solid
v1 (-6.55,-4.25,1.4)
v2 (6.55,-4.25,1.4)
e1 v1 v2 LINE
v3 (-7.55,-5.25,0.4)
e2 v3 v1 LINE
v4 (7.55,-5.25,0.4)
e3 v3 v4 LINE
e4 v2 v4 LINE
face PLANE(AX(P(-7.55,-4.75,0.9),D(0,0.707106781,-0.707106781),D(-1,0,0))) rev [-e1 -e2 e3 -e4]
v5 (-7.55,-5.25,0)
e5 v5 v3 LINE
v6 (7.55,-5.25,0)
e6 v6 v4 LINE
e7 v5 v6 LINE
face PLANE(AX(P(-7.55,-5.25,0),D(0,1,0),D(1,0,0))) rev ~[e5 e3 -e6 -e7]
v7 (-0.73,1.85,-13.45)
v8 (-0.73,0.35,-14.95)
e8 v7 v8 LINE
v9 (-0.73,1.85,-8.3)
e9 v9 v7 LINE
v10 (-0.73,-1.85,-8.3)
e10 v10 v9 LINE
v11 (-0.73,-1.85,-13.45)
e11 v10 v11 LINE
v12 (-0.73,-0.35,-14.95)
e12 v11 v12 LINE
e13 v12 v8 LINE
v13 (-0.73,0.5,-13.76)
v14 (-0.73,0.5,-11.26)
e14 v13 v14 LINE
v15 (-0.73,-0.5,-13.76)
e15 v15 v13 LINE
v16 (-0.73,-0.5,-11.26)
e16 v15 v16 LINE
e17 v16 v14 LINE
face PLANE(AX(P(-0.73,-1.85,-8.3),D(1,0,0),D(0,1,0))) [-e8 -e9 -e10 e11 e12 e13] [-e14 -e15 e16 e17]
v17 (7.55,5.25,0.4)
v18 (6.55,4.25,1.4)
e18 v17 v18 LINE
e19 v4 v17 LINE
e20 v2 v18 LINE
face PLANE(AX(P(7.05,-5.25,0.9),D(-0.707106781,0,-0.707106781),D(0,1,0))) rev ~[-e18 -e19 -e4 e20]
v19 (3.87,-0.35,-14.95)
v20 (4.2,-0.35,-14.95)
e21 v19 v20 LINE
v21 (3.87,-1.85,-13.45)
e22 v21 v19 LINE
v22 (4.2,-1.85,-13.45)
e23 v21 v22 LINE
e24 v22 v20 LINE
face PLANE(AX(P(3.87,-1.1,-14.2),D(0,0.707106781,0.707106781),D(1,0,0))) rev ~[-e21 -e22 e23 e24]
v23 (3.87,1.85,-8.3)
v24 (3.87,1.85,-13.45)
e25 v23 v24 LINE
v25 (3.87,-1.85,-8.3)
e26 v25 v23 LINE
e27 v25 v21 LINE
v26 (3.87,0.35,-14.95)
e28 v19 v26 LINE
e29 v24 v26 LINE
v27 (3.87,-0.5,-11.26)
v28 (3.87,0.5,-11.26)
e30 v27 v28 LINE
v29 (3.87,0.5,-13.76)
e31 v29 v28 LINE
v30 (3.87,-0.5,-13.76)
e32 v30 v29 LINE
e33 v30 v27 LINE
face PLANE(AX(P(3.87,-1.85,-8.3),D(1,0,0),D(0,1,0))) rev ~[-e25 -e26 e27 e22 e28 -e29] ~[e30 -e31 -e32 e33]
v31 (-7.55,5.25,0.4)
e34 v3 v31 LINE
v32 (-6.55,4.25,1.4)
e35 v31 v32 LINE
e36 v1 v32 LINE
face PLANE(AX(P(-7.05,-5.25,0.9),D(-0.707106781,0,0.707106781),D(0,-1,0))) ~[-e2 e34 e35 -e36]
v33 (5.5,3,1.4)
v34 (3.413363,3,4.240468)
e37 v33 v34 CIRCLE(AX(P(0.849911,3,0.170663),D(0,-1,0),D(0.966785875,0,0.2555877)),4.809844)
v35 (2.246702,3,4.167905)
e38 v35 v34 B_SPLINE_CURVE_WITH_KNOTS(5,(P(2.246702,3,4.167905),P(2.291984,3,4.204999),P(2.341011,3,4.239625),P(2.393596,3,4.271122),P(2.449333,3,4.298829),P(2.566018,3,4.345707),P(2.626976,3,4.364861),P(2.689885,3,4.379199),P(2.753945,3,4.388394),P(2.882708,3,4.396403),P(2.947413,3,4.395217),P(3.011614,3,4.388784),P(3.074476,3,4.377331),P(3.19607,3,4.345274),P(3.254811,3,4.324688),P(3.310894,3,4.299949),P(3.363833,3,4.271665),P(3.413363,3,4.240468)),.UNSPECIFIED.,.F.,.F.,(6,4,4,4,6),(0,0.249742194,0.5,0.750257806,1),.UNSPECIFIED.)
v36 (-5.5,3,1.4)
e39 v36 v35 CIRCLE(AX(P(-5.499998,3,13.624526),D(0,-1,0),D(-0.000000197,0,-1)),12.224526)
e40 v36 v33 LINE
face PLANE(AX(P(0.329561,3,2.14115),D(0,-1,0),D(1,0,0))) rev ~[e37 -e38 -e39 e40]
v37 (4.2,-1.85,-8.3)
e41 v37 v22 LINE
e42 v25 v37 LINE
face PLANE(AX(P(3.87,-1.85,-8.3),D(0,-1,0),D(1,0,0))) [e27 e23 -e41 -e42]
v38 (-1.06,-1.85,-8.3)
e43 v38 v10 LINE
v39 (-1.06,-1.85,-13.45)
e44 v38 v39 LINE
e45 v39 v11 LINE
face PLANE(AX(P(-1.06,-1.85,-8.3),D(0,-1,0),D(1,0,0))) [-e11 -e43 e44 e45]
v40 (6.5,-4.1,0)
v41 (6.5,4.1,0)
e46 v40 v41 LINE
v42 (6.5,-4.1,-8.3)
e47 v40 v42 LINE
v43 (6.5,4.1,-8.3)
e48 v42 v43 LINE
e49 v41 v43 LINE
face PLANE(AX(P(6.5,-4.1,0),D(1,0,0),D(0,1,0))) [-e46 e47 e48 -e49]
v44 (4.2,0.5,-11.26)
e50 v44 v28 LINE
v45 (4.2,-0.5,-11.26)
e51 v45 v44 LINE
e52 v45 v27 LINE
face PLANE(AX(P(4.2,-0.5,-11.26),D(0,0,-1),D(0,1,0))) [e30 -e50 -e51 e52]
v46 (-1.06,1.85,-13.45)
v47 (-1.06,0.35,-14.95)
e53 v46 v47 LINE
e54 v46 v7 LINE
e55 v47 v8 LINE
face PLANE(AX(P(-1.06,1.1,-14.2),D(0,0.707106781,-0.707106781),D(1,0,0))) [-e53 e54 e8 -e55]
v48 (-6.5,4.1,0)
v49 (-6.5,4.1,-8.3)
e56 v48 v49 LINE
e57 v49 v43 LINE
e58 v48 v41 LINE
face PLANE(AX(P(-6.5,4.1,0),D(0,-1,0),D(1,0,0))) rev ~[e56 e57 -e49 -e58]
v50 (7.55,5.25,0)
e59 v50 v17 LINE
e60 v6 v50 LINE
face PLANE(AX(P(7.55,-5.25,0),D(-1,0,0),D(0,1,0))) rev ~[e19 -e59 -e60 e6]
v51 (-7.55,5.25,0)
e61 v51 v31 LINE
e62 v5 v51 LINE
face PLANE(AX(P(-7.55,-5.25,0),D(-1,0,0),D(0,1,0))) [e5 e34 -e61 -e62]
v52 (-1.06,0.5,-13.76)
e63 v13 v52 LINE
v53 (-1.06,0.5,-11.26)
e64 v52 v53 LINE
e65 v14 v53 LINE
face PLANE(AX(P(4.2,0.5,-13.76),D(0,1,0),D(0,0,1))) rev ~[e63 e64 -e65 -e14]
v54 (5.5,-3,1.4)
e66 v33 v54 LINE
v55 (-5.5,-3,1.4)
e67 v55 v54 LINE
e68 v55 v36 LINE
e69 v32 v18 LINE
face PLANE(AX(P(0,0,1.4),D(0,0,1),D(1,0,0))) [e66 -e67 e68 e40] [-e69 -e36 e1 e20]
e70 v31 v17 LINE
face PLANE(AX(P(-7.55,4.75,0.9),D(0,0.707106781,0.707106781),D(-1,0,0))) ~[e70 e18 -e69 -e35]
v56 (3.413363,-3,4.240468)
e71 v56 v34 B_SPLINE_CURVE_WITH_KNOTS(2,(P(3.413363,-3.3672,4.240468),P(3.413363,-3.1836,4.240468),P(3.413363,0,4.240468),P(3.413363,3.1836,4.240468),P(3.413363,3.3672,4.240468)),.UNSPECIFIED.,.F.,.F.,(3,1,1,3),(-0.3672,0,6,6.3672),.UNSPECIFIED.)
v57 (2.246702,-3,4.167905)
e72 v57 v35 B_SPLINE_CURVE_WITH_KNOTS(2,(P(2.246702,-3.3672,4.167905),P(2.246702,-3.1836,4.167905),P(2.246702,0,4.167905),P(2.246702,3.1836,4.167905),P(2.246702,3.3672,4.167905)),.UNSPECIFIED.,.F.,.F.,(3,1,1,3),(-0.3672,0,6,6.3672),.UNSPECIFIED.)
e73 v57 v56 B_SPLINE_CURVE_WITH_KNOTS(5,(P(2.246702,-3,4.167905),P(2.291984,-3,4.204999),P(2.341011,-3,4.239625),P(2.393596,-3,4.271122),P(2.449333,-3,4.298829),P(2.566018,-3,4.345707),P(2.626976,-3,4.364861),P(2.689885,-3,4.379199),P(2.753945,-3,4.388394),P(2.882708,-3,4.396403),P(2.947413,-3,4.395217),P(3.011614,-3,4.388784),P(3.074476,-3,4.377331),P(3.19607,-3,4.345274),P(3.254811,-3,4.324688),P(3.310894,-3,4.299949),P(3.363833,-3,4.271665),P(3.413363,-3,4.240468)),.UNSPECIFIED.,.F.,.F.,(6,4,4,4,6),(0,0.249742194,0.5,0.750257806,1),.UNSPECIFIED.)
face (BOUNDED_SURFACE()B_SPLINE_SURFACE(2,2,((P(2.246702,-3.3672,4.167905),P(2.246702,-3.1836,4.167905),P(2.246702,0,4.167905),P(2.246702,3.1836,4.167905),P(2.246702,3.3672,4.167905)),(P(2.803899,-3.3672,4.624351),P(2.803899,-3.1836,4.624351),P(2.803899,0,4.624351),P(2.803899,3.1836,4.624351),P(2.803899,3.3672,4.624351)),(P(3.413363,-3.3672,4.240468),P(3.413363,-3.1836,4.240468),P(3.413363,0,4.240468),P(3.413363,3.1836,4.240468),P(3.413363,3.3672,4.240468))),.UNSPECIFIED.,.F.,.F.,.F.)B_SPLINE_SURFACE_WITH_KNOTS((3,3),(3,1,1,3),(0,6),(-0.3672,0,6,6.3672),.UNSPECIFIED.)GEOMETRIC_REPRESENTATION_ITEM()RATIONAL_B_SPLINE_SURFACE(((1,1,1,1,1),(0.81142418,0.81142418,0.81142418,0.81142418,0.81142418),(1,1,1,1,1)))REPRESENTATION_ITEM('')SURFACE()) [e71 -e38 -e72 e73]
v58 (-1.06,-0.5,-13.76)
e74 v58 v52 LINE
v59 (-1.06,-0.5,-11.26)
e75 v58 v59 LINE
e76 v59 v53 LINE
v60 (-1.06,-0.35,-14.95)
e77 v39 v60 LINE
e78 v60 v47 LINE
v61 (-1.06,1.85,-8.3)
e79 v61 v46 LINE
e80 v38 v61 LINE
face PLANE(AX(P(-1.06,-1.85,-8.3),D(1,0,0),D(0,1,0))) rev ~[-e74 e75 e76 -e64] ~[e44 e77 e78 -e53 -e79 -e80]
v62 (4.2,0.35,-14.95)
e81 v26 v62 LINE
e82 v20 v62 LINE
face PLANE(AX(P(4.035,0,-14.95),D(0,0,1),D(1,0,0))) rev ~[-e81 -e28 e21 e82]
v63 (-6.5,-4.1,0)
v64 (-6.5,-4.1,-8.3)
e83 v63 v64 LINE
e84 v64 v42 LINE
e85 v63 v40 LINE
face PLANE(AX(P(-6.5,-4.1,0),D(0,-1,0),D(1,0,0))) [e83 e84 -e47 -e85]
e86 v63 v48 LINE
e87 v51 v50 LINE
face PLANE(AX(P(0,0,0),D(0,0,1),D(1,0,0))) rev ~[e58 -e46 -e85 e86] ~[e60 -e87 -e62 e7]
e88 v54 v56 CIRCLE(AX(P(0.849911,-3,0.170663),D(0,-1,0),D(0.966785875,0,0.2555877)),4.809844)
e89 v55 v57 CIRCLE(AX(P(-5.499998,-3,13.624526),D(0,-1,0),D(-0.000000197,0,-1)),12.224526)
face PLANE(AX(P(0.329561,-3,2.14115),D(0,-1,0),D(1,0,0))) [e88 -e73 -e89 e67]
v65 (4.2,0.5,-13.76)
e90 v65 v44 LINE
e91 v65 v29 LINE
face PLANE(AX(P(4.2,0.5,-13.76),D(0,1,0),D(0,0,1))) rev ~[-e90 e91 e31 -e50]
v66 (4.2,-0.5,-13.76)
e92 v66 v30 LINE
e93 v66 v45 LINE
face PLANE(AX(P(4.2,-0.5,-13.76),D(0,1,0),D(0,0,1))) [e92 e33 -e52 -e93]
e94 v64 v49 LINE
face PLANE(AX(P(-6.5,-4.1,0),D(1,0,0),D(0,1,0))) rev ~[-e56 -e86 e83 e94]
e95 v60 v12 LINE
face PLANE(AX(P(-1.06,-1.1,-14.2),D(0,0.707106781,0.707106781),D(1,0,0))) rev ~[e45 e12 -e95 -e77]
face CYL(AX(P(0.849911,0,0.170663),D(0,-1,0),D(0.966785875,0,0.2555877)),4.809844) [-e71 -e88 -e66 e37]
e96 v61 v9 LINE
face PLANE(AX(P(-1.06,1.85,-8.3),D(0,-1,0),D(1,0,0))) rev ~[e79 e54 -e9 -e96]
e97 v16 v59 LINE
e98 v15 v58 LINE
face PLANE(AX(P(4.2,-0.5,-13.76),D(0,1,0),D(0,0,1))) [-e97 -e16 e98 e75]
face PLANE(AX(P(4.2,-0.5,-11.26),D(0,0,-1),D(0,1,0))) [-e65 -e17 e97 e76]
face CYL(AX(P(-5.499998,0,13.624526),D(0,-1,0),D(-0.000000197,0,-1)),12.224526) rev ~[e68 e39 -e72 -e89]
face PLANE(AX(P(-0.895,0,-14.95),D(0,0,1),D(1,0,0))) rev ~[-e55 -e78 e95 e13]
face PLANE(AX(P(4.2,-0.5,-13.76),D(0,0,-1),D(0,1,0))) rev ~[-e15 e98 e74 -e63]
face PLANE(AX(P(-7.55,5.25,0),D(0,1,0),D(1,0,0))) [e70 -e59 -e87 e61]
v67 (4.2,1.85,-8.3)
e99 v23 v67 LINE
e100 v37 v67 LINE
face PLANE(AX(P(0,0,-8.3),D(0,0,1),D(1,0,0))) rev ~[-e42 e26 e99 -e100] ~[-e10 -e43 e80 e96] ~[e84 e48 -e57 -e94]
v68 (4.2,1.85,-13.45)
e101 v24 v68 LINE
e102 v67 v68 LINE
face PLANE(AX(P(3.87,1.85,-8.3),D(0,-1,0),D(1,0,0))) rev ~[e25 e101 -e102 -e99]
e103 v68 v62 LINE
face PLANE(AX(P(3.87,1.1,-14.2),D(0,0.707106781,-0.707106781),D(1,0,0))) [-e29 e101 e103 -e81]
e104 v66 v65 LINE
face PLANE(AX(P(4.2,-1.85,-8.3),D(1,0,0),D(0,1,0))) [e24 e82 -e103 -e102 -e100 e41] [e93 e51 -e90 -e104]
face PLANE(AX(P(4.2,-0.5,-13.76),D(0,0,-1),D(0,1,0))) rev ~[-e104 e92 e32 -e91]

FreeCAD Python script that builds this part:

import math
import FreeCAD as App
import Part
import Sketcher
from FreeCAD import Vector


def edges_at(feature, points):
    """Names of the edges that pass closest to the given points."""
    edges = feature.Shape.Edges
    near = lambda p: min(range(len(edges)), key=lambda i: edges[i].distToShape(Part.Vertex(*p))[0])
    return sorted({f"Edge{near(p) + 1}" for p in points})


def add_polygon(sketch, points):
    """Adds a closed chain of lines whose ends are joined by coincident constraints."""
    first, n = sketch.GeometryCount, len(points)
    for a, b in zip(points, points[1:] + points[:1]):
        sketch.addGeometry(Part.LineSegment(App.Vector(*a, 0), App.Vector(*b, 0)), False)
    for i in range(n):
        sketch.addConstraint(Sketcher.Constraint("Coincident", first + i, 2, first + (i + 1) % n, 1))

doc = App.newDocument("Part")
params = doc.addObject("Spreadsheet::Sheet", "Params")
for row, (alias, value) in enumerate([
    ("sketch1_width", "13 mm"),
    ("sketch1_height", "8.2 mm"),
    ("pad1_length", "8.3 mm"),
    ("sketch2_width", "15.1 mm"),
    ("sketch2_height", "10.5 mm"),
    ("pad2_length", "1.4 mm"),
    ("chamfer_size", "1 mm"),
    ("sketch3_width", "11 mm"),
    ("pad3_length", "6 mm"),
    ("fillet_radius", "1 mm"),
    ("sketch4_height", "3.7 mm"),
    ("sketch4_width", "0.33 mm"),
    ("pad4_length", "6.65 mm"),
    ("chamfer2_size", "1.5 mm"),
    ("sketch5_width", "1 mm"),
    ("sketch5_height", "2.5 mm"),
], start=1):
    params.set(f"A{row}", alias)
    params.set(f"B{row}", "=" + value)
    params.setAlias(f"B{row}", alias)

body = doc.addObject("PartDesign::Body", "Body")

# Sketch on XY plane
sketch1 = body.newObject("Sketcher::SketchObject", "Sketch")
sketch1.AttachmentSupport = (doc.getObject("XY_Plane"), [""])
sketch1.MapMode = "FlatFace"
add_polygon(sketch1, [(-6.5, 4.1), (-6.5, -4.1), (6.5, -4.1), (6.5, 4.1)])  # lines 0-3
sketch1.addConstraint(Sketcher.Constraint("Vertical", 0))
sketch1.addConstraint(Sketcher.Constraint("Horizontal", 1))
sketch1.addConstraint(Sketcher.Constraint("Vertical", 2))
sketch1.addConstraint(Sketcher.Constraint("Horizontal", 3))
sketch1.addConstraint(Sketcher.Constraint("Symmetric", 0, 2, 2, 2, -1, 1))
sketch1.addConstraint(Sketcher.Constraint("DistanceX", 1, 1, 1, 2, 13.0))
sketch1.addConstraint(Sketcher.Constraint("DistanceY", 0, 2, 0, 1, 8.2))
sketch1.setExpression("Constraints[9]", "Params.sketch1_width")
sketch1.setExpression("Constraints[10]", "Params.sketch1_height")
pad1 = body.newObject("PartDesign::Pad", "Pad")
pad1.Profile = sketch1
pad1.setExpression("Length", "Params.pad1_length")
pad1.Reversed = True

# Sketch on XY plane
sketch2 = body.newObject("Sketcher::SketchObject", "Sketch001")
sketch2.AttachmentSupport = (doc.getObject("XY_Plane"), [""])
sketch2.MapMode = "FlatFace"
add_polygon(sketch2, [(-7.55, 5.25), (-7.55, -5.25), (7.55, -5.25), (7.55, 5.25)])  # lines 0-3
sketch2.addConstraint(Sketcher.Constraint("Vertical", 0))
sketch2.addConstraint(Sketcher.Constraint("Horizontal", 1))
sketch2.addConstraint(Sketcher.Constraint("Vertical", 2))
sketch2.addConstraint(Sketcher.Constraint("Horizontal", 3))
sketch2.addConstraint(Sketcher.Constraint("Symmetric", 0, 2, 2, 2, -1, 1))
sketch2.addConstraint(Sketcher.Constraint("DistanceX", 1, 1, 1, 2, 15.1))
sketch2.addConstraint(Sketcher.Constraint("DistanceY", 0, 2, 0, 1, 10.5))
sketch2.setExpression("Constraints[9]", "Params.sketch2_width")
sketch2.setExpression("Constraints[10]", "Params.sketch2_height")
pad2 = body.newObject("PartDesign::Pad", "Pad001")
pad2.Profile = sketch2
pad2.setExpression("Length", "Params.pad2_length")
doc.recompute()

chamfer = body.newObject("PartDesign::Chamfer", "Chamfer")
chamfer.Base = (pad2, edges_at(pad2, [
    (-7.55, 0, 1.4),
    (0, 5.25, 1.4),
    (7.55, 0, 1.4),
    (0, -5.25, 1.4),
]))
chamfer.setExpression("Size", "Params.chamfer_size")

# Sketch on XZ plane
sketch3 = body.newObject("Sketcher::SketchObject", "Sketch002")
sketch3.AttachmentSupport = (doc.getObject("XZ_Plane"), [""])
sketch3.MapMode = "FlatFace"
sketch3.addGeometry(Part.LineSegment(Vector(-5.5, 1.4, 0), Vector(5.5, 1.4, 0)), False)
sketch3.addGeometry(Part.ArcOfCircle(Part.Circle(Vector(0.849911, 0.170663, 0), Vector(0, 0, 1), 4.809844), math.radians(14.808412), math.radians(66.8699)), False)
sketch3.addGeometry(Part.ArcOfCircle(Part.Circle(Vector(-5.499998, 13.624526, 0), Vector(0, 0, 1), 12.224526), math.radians(-90.000011), math.radians(-47.623573)), False)
sketch3.addConstraint(Sketcher.Constraint("Coincident", 0, 2, 1, 1))
sketch3.addConstraint(Sketcher.Constraint("Coincident", 1, 2, 2, 2))
sketch3.addConstraint(Sketcher.Constraint("Tangent", 2, 1, 0, 1))
sketch3.addConstraint(Sketcher.Constraint("Horizontal", 0))
sketch3.addConstraint(Sketcher.Constraint("DistanceX", 0, 1, 0, 2, 11.0))
sketch3.addConstraint(Sketcher.Constraint("DistanceX", -1, 1, 0, 2, 5.5))
sketch3.addConstraint(Sketcher.Constraint("DistanceY", -1, 1, 0, 2, 1.4))
sketch3.addConstraint(Sketcher.Constraint("Radius", 1, 4.809844))
sketch3.addConstraint(Sketcher.Constraint("Radius", 2, 12.224526))
sketch3.addConstraint(Sketcher.Constraint("DistanceX", -1, 1, 1, 3, 0.849911))
sketch3.setExpression("Constraints[4]", "Params.sketch3_width")
pad3 = body.newObject("PartDesign::Pad", "Pad002")
pad3.Profile = sketch3
pad3.setExpression("Length", "Params.pad3_length")
pad3.Midplane = True
doc.recompute()

fillet = body.newObject("PartDesign::Fillet", "Fillet")
fillet.Base = (pad3, edges_at(pad3, [(2.739, 0, 4.594)]))
fillet.setExpression("Radius", "Params.fillet_radius")

# Sketch on XY plane
sketch4 = body.newObject("Sketcher::SketchObject", "Sketch003")
sketch4.AttachmentSupport = (doc.getObject("XY_Plane"), [""])
sketch4.MapMode = "FlatFace"
sketch4.AttachmentOffset = App.Placement(Vector(0, 0, -8.3), App.Rotation())
add_polygon(sketch4, [(3.87, 1.85), (3.87, -1.85), (4.2, -1.85), (4.2, 1.85)])  # lines 0-3
add_polygon(sketch4, [(-1.06, 1.85), (-1.06, -1.85), (-0.73, -1.85), (-0.73, 1.85)])  # lines 4-7
sketch4.addConstraint(Sketcher.Constraint("Vertical", 0))
sketch4.addConstraint(Sketcher.Constraint("Horizontal", 1))
sketch4.addConstraint(Sketcher.Constraint("Vertical", 2))
sketch4.addConstraint(Sketcher.Constraint("Horizontal", 3))
sketch4.addConstraint(Sketcher.Constraint("Vertical", 4))
sketch4.addConstraint(Sketcher.Constraint("Horizontal", 5))
sketch4.addConstraint(Sketcher.Constraint("Vertical", 6))
sketch4.addConstraint(Sketcher.Constraint("Horizontal", 7))
sketch4.addConstraint(Sketcher.Constraint("Horizontal", 1, 2, 4, 2))
sketch4.addConstraint(Sketcher.Constraint("Horizontal", 3, 2, 6, 2))
sketch4.addConstraint(Sketcher.Constraint("Equal", 3, 5))
sketch4.addConstraint(Sketcher.Constraint("DistanceY", 0, 2, 0, 1, 3.7))
sketch4.addConstraint(Sketcher.Constraint("DistanceX", 1, 1, 1, 2, 0.33))
sketch4.addConstraint(Sketcher.Constraint("DistanceX", -1, 1, 1, 2, 4.2))
sketch4.addConstraint(Sketcher.Constraint("DistanceX", 5, 2, 0, 2, 4.6))
sketch4.addConstraint(Sketcher.Constraint("DistanceY", 0, 2, -1, 1, 1.85))
sketch4.setExpression("Constraints[19]", "Params.sketch4_height")
sketch4.setExpression("Constraints[20]", "Params.sketch4_width")
pad4 = body.newObject("PartDesign::Pad", "Pad003")
pad4.Profile = sketch4
pad4.setExpression("Length", "Params.pad4_length")
pad4.Reversed = True
doc.recompute()

chamfer2 = body.newObject("PartDesign::Chamfer", "Chamfer001")
chamfer2.Base = (pad4, edges_at(pad4, [
    (4.035, -1.85, -14.95),
    (4.035, 1.85, -14.95),
    (-0.895, 1.85, -14.95),
    (-0.895, -1.85, -14.95),
]))
chamfer2.setExpression("Size", "Params.chamfer2_size")

# Sketch on YZ plane
sketch5 = body.newObject("Sketcher::SketchObject", "Sketch004")
sketch5.AttachmentSupport = (doc.getObject("YZ_Plane"), [""])
sketch5.MapMode = "FlatFace"
sketch5.AttachmentOffset = App.Placement(Vector(0, 0, 4.2), App.Rotation())
add_polygon(sketch5, [(-0.5, -11.26), (-0.5, -13.76), (0.5, -13.76), (0.5, -11.26)])  # lines 0-3
sketch5.addConstraint(Sketcher.Constraint("Vertical", 0))
sketch5.addConstraint(Sketcher.Constraint("Horizontal", 1))
sketch5.addConstraint(Sketcher.Constraint("Vertical", 2))
sketch5.addConstraint(Sketcher.Constraint("Horizontal", 3))
sketch5.addConstraint(Sketcher.Constraint("DistanceX", 1, 1, 1, 2, 1.0))
sketch5.addConstraint(Sketcher.Constraint("DistanceY", 0, 2, 0, 1, 2.5))
sketch5.addConstraint(Sketcher.Constraint("DistanceX", 0, 2, -1, 1, 0.5))
sketch5.addConstraint(Sketcher.Constraint("DistanceY", 0, 2, -1, 1, 13.76))
sketch5.setExpression("Constraints[8]", "Params.sketch5_width")
sketch5.setExpression("Constraints[9]", "Params.sketch5_height")
pocket1 = body.newObject("PartDesign::Pocket", "Pocket")
pocket1.Profile = sketch5
pocket1.Type = "ThroughAll"

doc.recompute()
